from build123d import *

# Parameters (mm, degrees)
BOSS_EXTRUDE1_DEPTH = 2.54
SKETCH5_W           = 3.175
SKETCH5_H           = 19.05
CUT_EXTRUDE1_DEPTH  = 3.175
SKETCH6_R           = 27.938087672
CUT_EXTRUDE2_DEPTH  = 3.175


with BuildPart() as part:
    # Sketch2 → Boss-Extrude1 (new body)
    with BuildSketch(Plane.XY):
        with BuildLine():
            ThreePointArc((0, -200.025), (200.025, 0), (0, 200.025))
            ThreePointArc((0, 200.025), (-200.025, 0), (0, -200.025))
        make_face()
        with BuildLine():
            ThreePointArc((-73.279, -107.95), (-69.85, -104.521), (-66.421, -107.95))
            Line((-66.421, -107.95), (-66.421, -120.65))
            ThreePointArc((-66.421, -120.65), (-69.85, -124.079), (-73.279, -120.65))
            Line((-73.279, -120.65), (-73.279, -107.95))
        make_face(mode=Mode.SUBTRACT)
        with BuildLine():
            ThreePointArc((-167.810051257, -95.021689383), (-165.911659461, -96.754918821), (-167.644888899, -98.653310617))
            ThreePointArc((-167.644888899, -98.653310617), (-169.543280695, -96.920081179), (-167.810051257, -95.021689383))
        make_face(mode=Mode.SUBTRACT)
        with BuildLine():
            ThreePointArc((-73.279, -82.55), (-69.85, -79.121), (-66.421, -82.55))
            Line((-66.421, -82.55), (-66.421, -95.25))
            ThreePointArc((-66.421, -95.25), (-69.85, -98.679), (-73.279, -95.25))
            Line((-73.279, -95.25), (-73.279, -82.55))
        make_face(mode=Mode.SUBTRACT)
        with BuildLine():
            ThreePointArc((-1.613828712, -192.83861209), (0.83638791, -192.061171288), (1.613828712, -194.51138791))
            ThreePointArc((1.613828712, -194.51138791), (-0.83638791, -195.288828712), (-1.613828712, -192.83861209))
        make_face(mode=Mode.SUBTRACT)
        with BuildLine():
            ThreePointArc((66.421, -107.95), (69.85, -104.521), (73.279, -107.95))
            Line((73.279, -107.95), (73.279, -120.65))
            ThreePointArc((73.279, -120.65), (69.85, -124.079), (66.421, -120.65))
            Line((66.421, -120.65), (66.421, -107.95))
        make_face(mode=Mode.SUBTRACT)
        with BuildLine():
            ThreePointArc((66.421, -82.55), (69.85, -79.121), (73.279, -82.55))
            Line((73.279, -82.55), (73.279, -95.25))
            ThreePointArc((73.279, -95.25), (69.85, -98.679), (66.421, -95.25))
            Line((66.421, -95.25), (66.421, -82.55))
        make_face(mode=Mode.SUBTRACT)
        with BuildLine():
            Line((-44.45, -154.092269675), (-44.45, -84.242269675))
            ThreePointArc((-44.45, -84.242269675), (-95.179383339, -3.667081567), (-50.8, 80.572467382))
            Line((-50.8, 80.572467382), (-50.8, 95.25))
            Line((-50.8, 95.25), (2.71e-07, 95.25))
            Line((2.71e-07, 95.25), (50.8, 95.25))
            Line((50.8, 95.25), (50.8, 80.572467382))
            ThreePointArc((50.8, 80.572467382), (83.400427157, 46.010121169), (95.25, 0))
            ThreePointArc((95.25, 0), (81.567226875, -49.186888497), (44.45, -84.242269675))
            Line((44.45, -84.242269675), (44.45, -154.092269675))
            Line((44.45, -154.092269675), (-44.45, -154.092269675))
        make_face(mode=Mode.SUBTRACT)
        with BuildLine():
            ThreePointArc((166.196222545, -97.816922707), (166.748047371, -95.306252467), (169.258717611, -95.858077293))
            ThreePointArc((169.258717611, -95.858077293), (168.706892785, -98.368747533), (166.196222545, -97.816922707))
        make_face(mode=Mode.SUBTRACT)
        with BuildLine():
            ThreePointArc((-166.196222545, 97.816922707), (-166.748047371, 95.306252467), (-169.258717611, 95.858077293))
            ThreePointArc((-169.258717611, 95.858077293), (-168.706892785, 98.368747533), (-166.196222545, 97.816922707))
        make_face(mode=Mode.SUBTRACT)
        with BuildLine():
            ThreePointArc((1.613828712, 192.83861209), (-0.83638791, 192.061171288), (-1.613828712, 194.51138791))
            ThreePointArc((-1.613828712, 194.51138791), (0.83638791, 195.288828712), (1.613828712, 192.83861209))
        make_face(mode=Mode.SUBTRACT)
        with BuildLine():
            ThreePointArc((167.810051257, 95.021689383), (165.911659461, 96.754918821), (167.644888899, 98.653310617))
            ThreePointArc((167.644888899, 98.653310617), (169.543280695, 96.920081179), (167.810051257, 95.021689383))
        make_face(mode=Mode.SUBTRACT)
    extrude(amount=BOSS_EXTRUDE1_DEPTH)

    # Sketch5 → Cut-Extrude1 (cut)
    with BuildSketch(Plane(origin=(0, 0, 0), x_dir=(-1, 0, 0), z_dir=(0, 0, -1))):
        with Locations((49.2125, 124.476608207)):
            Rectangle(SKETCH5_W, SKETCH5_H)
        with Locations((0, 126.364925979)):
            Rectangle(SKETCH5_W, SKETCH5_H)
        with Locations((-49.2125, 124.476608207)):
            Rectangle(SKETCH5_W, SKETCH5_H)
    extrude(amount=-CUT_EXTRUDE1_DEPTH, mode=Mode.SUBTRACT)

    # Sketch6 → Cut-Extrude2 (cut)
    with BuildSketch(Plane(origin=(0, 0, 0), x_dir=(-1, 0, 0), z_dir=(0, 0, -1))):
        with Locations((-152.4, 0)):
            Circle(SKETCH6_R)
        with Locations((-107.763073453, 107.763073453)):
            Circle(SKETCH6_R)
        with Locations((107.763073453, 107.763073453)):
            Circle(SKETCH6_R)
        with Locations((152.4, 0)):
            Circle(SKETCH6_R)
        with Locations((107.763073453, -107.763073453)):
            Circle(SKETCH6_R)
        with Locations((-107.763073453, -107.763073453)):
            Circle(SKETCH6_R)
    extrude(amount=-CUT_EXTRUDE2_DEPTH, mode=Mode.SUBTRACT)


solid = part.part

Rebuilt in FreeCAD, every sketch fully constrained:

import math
import FreeCAD as App
import Part
import Sketcher
from FreeCAD import Vector
Q = App.Units.Quantity

doc = App.newDocument("Part")
body = doc.addObject("PartDesign::Body", "Body")

# Sketch on XY plane
sketch1 = body.newObject("Sketcher::SketchObject", "Sketch")
sketch1.AttachmentSupport = (doc.getObject("XY_Plane"), [""])
sketch1.MapMode = "FlatFace"
sketch1.addGeometry([
    Part.Circle(Vector(0, 0, 0), Vector(0, 0, 1), 200.025),  # 0
    Part.LineSegment(Vector(-73.279, -120.65, 0), Vector(-73.279, -107.95, 0)),  # 1
    Part.ArcOfCircle(Part.Circle(Vector(-69.85, -107.95, 0), Vector(0, 0, 1), 3.429), math.radians(0), math.radians(180)),  # 2
    Part.LineSegment(Vector(-66.421, -107.95, 0), Vector(-66.421, -120.65, 0)),  # 3
    Part.ArcOfCircle(Part.Circle(Vector(-69.85, -120.65, 0), Vector(0, 0, 1), 3.429), math.radians(180), math.radians(360)),  # 4
    Part.Circle(Vector(-167.72747, -96.8375, 0), Vector(0, 0, 1), 1.817687),  # 5
    Part.LineSegment(Vector(-73.279, -95.25, 0), Vector(-73.279, -82.55, 0)),  # 6
    Part.ArcOfCircle(Part.Circle(Vector(-69.85, -82.55, 0), Vector(0, 0, 1), 3.429), math.radians(0), math.radians(180)),  # 7
    Part.LineSegment(Vector(-66.421, -82.55, 0), Vector(-66.421, -95.25, 0)),  # 8
    Part.ArcOfCircle(Part.Circle(Vector(-69.85, -95.25, 0), Vector(0, 0, 1), 3.429), math.radians(180), math.radians(360)),  # 9
    Part.LineSegment(Vector(44.45, -154.09227, 0), Vector(-44.45, -154.09227, 0)),  # 10
    Part.LineSegment(Vector(-44.45, -154.09227, 0), Vector(-44.45, -84.24227, 0)),  # 11
    Part.ArcOfCircle(Part.Circle(Vector(0, 0, 0), Vector(0, 0, 1), 95.25), math.radians(122.230953), math.radians(242.181861)),  # 12
    Part.LineSegment(Vector(-50.8, 80.572467, 0), Vector(-50.8, 95.25, 0)),  # 13
    Part.LineSegment(Vector(-50.8, 95.25, 0), Vector(50.8, 95.25, 0)),  # 14
    Part.LineSegment(Vector(50.8, 95.25, 0), Vector(50.8, 80.572467, 0)),  # 15
    Part.ArcOfCircle(Part.Circle(Vector(0, 0, 0), Vector(0, 0, 1), 95.25), math.radians(0), math.radians(57.769047)),  # 16
    Part.ArcOfCircle(Part.Circle(Vector(0, 0, 0), Vector(0, 0, 1), 95.25), math.radians(-62.181861), math.radians(0)),  # 17
    Part.LineSegment(Vector(44.45, -84.24227, 0), Vector(44.45, -154.09227, 0)),  # 18
    Part.Circle(Vector(0, -193.675, 0), Vector(0, 0, 1), 1.817687),  # 19
    Part.LineSegment(Vector(66.421, -120.65, 0), Vector(66.421, -107.95, 0)),  # 20
    Part.ArcOfCircle(Part.Circle(Vector(69.85, -107.95, 0), Vector(0, 0, 1), 3.429), math.radians(0), math.radians(180)),  # 21
    Part.LineSegment(Vector(73.279, -107.95, 0), Vector(73.279, -120.65, 0)),  # 22
    Part.ArcOfCircle(Part.Circle(Vector(69.85, -120.65, 0), Vector(0, 0, 1), 3.429), math.radians(180), math.radians(360)),  # 23
    Part.LineSegment(Vector(66.421, -95.25, 0), Vector(66.421, -82.55, 0)),  # 24
    Part.ArcOfCircle(Part.Circle(Vector(69.85, -82.55, 0), Vector(0, 0, 1), 3.429), math.radians(0), math.radians(180)),  # 25
    Part.LineSegment(Vector(73.279, -82.55, 0), Vector(73.279, -95.25, 0)),  # 26
    Part.ArcOfCircle(Part.Circle(Vector(69.85, -95.25, 0), Vector(0, 0, 1), 3.429), math.radians(180), math.radians(360)),  # 27
    Part.Circle(Vector(167.72747, -96.8375, 0), Vector(0, 0, 1), 1.817687),  # 28
    Part.Circle(Vector(-167.72747, 96.8375, 0), Vector(0, 0, 1), 1.817687),  # 29
    Part.Circle(Vector(167.72747, 96.8375, 0), Vector(0, 0, 1), 1.817687),  # 30
    Part.Circle(Vector(0, 193.675, 0), Vector(0, 0, 1), 1.817687),  # 31
], False)
sketch1.addConstraint([
    Sketcher.Constraint("Tangent", 1, 2, 2, 2),
    Sketcher.Constraint("Tangent", 2, 1, 3, 1),
    Sketcher.Constraint("Tangent", 3, 2, 4, 2),
    Sketcher.Constraint("Tangent", 4, 1, 1, 1),
    Sketcher.Constraint("Tangent", 6, 2, 7, 2),
    Sketcher.Constraint("Tangent", 7, 1, 8, 1),
    Sketcher.Constraint("Tangent", 8, 2, 9, 2),
    Sketcher.Constraint("Tangent", 9, 1, 6, 1),
    Sketcher.Constraint("Coincident", 10, 2, 11, 1),
    Sketcher.Constraint("Coincident", 11, 2, 12, 2),
    Sketcher.Constraint("Coincident", 12, 1, 13, 1),
    Sketcher.Constraint("Coincident", 13, 2, 14, 1),
    Sketcher.Constraint("Coincident", 14, 2, 15, 1),
    Sketcher.Constraint("Coincident", 15, 2, 16, 2),
    Sketcher.Constraint("Tangent", 16, 1, 17, 2),
    Sketcher.Constraint("Coincident", 17, 1, 18, 1),
    Sketcher.Constraint("Coincident", 18, 2, 10, 1),
    Sketcher.Constraint("Tangent", 20, 2, 21, 2),
    Sketcher.Constraint("Tangent", 21, 1, 22, 1),
    Sketcher.Constraint("Tangent", 22, 2, 23, 2),
    Sketcher.Constraint("Tangent", 23, 1, 20, 1),
    Sketcher.Constraint("Tangent", 24, 2, 25, 2),
    Sketcher.Constraint("Tangent", 25, 1, 26, 1),
    Sketcher.Constraint("Tangent", 26, 2, 27, 2),
    Sketcher.Constraint("Tangent", 27, 1, 24, 1),
    Sketcher.Constraint("Vertical", 1),
    Sketcher.Constraint("Vertical", 3),
    Sketcher.Constraint("Vertical", 6),
    Sketcher.Constraint("Vertical", 8),
    Sketcher.Constraint("Horizontal", 10),
    Sketcher.Constraint("Vertical", 11),
    Sketcher.Constraint("Vertical", 13),
    Sketcher.Constraint("Horizontal", 14),
    Sketcher.Constraint("Vertical", 15),
    Sketcher.Constraint("Vertical", 18),
    Sketcher.Constraint("Vertical", 20),
    Sketcher.Constraint("Vertical", 22),
    Sketcher.Constraint("Vertical", 24),
    Sketcher.Constraint("Vertical", 26),
    Sketcher.Constraint("Coincident", 0, 3, -1, 1),
    Sketcher.Constraint("Coincident", 12, 3, -1, 1),
    Sketcher.Constraint("Coincident", 16, 3, -1, 1),
    Sketcher.Constraint("Equal", 4, 7),
    Sketcher.Constraint("Equal", 12, 16),
    Sketcher.Constraint("Equal", 16, 17),
    Sketcher.Constraint("Equal", 5, 19),
    Sketcher.Constraint("Equal", 9, 21),
    Sketcher.Constraint("Equal", 23, 25),
    Sketcher.Constraint("Equal", 19, 28),
    Sketcher.Constraint("Equal", 28, 29),
    Sketcher.Constraint("Equal", 29, 30),
    Sketcher.Constraint("Equal", 30, 31),
    Sketcher.Constraint("Symmetric", 28, 3, 29, 3, -1, 1),
    Sketcher.Constraint("Symmetric", 5, 3, 30, 3, -1, 1),
    Sketcher.Constraint("Symmetric", 19, 3, 31, 3, -1, 1),
    Sketcher.Constraint("Symmetric", 2, 3, 21, 3, -2),
    Sketcher.Constraint("Symmetric", 7, 3, 25, 3, -2),
    Sketcher.Constraint("Symmetric", 5, 3, 28, 3, -2),
    Sketcher.Constraint("PointOnObject", 19, 3, -2),
    Sketcher.Constraint("PointOnObject", 16, 1, -1),
    Sketcher.Constraint("Horizontal", 4, 3, 23, 3),
    Sketcher.Constraint("Horizontal", 9, 3, 27, 3),
    Sketcher.Constraint("Horizontal", 12, 1, 15, 2),
    Sketcher.Constraint("Horizontal", 11, 2, 17, 1),
    Sketcher.Constraint("Vertical", 4, 3, 7, 3),
    Sketcher.Constraint("Equal", 3, 6),
    Sketcher.Constraint("Diameter", 0, Q("15.75 in")),
    Sketcher.Constraint("DistanceX", 14, 1, 14, 2, Q("4 in")),
    Sketcher.Constraint("Radius", 12, Q("3.75 in")),
    Sketcher.Constraint("DistanceX", 10, 2, 10, 1, Q("3.5 in")),
    Sketcher.Constraint("DistanceY", 1, 1, 1, 2, Q("0.5 in")),
    Sketcher.Constraint("Radius", 2, Q("0.135 in")),
    Sketcher.Constraint("DistanceY", 2, 3, 7, 3, Q("1 in")),
    Sketcher.Constraint("DistanceX", 4, 3, 10, 2, Q("1 in")),
    Sketcher.Constraint("DistanceY", 11, 1, 11, 2, Q("2.75 in")),
    Sketcher.Constraint("DistanceY", 2, 3, -1, 1, Q("4.25 in")),
    Sketcher.Constraint("DistanceY", -1, 1, 13, 2, Q("3.75 in")),
    Sketcher.Constraint("DistanceY", 5, 3, -1, 1, Q("3.8125 in")),
    Sketcher.Constraint("DistanceY", 19, 3, -1, 1, Q("7.625 in")),
    Sketcher.Constraint("Diameter", 5, 3.635375),
    Sketcher.Constraint("DistanceX", 5, 3, -1, 1, 167.72747),
])
pad1 = body.newObject("PartDesign::Pad", "Pad")
pad1.Profile = sketch1
pad1.Length = Q("0.1 in")

# Sketch on XY plane
sketch2 = body.newObject("Sketcher::SketchObject", "Sketch001")
sketch2.AttachmentSupport = (doc.getObject("XY_Plane"), [""])
sketch2.MapMode = "FlatFace"
sketch2.addGeometry([
    Part.LineSegment(Vector(-47.625, 134.001608, 0), Vector(-47.625, 114.951608, 0)),  # 0
    Part.LineSegment(Vector(-47.625, 114.951608, 0), Vector(-50.8, 114.951608, 0)),  # 1
    Part.LineSegment(Vector(-50.8, 114.951608, 0), Vector(-50.8, 134.001608, 0)),  # 2
    Part.LineSegment(Vector(-50.8, 134.001608, 0), Vector(-47.625, 134.001608, 0)),  # 3
    Part.LineSegment(Vector(1.5875, 135.889926, 0), Vector(1.5875, 116.839926, 0)),  # 4
    Part.LineSegment(Vector(1.5875, 116.839926, 0), Vector(-1.5875, 116.839926, 0)),  # 5
    Part.LineSegment(Vector(-1.5875, 116.839926, 0), Vector(-1.5875, 135.889926, 0)),  # 6
    Part.LineSegment(Vector(-1.5875, 135.889926, 0), Vector(1.5875, 135.889926, 0)),  # 7
    Part.LineSegment(Vector(50.8, 134.001608, 0), Vector(50.8, 114.951608, 0)),  # 8
    Part.LineSegment(Vector(50.8, 114.951608, 0), Vector(47.625, 114.951608, 0)),  # 9
    Part.LineSegment(Vector(47.625, 114.951608, 0), Vector(47.625, 134.001608, 0)),  # 10
    Part.LineSegment(Vector(47.625, 134.001608, 0), Vector(50.8, 134.001608, 0)),  # 11
], False)
sketch2.addConstraint([
    Sketcher.Constraint("Coincident", 0, 2, 1, 1),
    Sketcher.Constraint("Coincident", 1, 2, 2, 1),
    Sketcher.Constraint("Coincident", 2, 2, 3, 1),
    Sketcher.Constraint("Coincident", 3, 2, 0, 1),
    Sketcher.Constraint("Coincident", 4, 2, 5, 1),
    Sketcher.Constraint("Coincident", 5, 2, 6, 1),
    Sketcher.Constraint("Coincident", 6, 2, 7, 1),
    Sketcher.Constraint("Coincident", 7, 2, 4, 1),
    Sketcher.Constraint("Coincident", 8, 2, 9, 1),
    Sketcher.Constraint("Coincident", 9, 2, 10, 1),
    Sketcher.Constraint("Coincident", 10, 2, 11, 1),
    Sketcher.Constraint("Coincident", 11, 2, 8, 1),
    Sketcher.Constraint("Vertical", 0),
    Sketcher.Constraint("Horizontal", 1),
    Sketcher.Constraint("Vertical", 2),
    Sketcher.Constraint("Horizontal", 3),
    Sketcher.Constraint("Vertical", 4),
    Sketcher.Constraint("Horizontal", 5),
    Sketcher.Constraint("Vertical", 6),
    Sketcher.Constraint("Horizontal", 7),
    Sketcher.Constraint("Vertical", 8),
    Sketcher.Constraint("Horizontal", 9),
    Sketcher.Constraint("Vertical", 10),
    Sketcher.Constraint("Horizontal", 11),
    Sketcher.Constraint("Symmetric", 1, 2, 8, 2, -2),
    Sketcher.Constraint("Symmetric", 3, 2, 10, 2, -2),
    Sketcher.Constraint("Equal", 3, 5),
    Sketcher.Constraint("Equal", 2, 4),
    Sketcher.Constraint("DistanceX", 1, 2, -1, 1, Q("2 in")),
    Sketcher.Constraint("DistanceY", 0, 2, 0, 1, Q("0.75 in")),
    Sketcher.Constraint("DistanceX", 1, 2, 1, 1, Q("0.125 in")),
    Sketcher.Constraint("DistanceX", -1, 1, 4, 2, Q("0.0625 in")),
    Sketcher.Constraint("DistanceY", -1, 1, 0, 2, 114.951608),
    Sketcher.Constraint("DistanceY", -1, 1, 4, 2, 116.839926),
])
pocket1 = body.newObject("PartDesign::Pocket", "Pocket")
pocket1.Profile = sketch2
pocket1.Length = Q("0.125 in")
pocket1.Reversed = True

# Sketch on XY plane
sketch3 = body.newObject("Sketcher::SketchObject", "Sketch002")
sketch3.AttachmentSupport = (doc.getObject("XY_Plane"), [""])
sketch3.MapMode = "FlatFace"
sketch3.addGeometry([
    Part.Circle(Vector(152.4, 0, 0), Vector(0, 0, 1), 27.938088),  # 0
    Part.Circle(Vector(107.763073, 107.763073, 0), Vector(0, 0, 1), 27.938088),  # 1
    Part.Circle(Vector(-107.763073, 107.763073, 0), Vector(0, 0, 1), 27.938088),  # 2
    Part.Circle(Vector(-152.4, 0, 0), Vector(0, 0, 1), 27.938088),  # 3
    Part.Circle(Vector(-107.763073, -107.763073, 0), Vector(0, 0, 1), 27.938088),  # 4
    Part.Circle(Vector(107.763073, -107.763073, 0), Vector(0, 0, 1), 27.938088),  # 5
], False)
sketch3.addConstraint([
    Sketcher.Constraint("Equal", 0, 1),
    Sketcher.Constraint("Equal", 1, 2),
    Sketcher.Constraint("Equal", 2, 3),
    Sketcher.Constraint("Equal", 3, 4),
    Sketcher.Constraint("Equal", 4, 5),
    Sketcher.Constraint("Symmetric", 0, 3, 3, 3, -1, 1),
    Sketcher.Constraint("Symmetric", 1, 3, 4, 3, -1, 1),
    Sketcher.Constraint("Symmetric", 2, 3, 5, 3, -1, 1),
    Sketcher.Constraint("Symmetric", 1, 3, 2, 3, -2),
    Sketcher.Constraint("PointOnObject", 0, 3, -1),
    Sketcher.Constraint("DistanceX", -1, 1, 0, 3, Q("6 in")),
    Sketcher.Constraint("Diameter", 0, 55.876175),
    Sketcher.Constraint("DistanceX", -1, 1, 1, 3, 107.763073),
    Sketcher.Constraint("DistanceY", -1, 1, 1, 3, 107.763073),
])
pocket2 = body.newObject("PartDesign::Pocket", "Pocket001")
pocket2.Profile = sketch3
pocket2.Length = Q("0.125 in")
pocket2.Reversed = True

doc.recompute()
